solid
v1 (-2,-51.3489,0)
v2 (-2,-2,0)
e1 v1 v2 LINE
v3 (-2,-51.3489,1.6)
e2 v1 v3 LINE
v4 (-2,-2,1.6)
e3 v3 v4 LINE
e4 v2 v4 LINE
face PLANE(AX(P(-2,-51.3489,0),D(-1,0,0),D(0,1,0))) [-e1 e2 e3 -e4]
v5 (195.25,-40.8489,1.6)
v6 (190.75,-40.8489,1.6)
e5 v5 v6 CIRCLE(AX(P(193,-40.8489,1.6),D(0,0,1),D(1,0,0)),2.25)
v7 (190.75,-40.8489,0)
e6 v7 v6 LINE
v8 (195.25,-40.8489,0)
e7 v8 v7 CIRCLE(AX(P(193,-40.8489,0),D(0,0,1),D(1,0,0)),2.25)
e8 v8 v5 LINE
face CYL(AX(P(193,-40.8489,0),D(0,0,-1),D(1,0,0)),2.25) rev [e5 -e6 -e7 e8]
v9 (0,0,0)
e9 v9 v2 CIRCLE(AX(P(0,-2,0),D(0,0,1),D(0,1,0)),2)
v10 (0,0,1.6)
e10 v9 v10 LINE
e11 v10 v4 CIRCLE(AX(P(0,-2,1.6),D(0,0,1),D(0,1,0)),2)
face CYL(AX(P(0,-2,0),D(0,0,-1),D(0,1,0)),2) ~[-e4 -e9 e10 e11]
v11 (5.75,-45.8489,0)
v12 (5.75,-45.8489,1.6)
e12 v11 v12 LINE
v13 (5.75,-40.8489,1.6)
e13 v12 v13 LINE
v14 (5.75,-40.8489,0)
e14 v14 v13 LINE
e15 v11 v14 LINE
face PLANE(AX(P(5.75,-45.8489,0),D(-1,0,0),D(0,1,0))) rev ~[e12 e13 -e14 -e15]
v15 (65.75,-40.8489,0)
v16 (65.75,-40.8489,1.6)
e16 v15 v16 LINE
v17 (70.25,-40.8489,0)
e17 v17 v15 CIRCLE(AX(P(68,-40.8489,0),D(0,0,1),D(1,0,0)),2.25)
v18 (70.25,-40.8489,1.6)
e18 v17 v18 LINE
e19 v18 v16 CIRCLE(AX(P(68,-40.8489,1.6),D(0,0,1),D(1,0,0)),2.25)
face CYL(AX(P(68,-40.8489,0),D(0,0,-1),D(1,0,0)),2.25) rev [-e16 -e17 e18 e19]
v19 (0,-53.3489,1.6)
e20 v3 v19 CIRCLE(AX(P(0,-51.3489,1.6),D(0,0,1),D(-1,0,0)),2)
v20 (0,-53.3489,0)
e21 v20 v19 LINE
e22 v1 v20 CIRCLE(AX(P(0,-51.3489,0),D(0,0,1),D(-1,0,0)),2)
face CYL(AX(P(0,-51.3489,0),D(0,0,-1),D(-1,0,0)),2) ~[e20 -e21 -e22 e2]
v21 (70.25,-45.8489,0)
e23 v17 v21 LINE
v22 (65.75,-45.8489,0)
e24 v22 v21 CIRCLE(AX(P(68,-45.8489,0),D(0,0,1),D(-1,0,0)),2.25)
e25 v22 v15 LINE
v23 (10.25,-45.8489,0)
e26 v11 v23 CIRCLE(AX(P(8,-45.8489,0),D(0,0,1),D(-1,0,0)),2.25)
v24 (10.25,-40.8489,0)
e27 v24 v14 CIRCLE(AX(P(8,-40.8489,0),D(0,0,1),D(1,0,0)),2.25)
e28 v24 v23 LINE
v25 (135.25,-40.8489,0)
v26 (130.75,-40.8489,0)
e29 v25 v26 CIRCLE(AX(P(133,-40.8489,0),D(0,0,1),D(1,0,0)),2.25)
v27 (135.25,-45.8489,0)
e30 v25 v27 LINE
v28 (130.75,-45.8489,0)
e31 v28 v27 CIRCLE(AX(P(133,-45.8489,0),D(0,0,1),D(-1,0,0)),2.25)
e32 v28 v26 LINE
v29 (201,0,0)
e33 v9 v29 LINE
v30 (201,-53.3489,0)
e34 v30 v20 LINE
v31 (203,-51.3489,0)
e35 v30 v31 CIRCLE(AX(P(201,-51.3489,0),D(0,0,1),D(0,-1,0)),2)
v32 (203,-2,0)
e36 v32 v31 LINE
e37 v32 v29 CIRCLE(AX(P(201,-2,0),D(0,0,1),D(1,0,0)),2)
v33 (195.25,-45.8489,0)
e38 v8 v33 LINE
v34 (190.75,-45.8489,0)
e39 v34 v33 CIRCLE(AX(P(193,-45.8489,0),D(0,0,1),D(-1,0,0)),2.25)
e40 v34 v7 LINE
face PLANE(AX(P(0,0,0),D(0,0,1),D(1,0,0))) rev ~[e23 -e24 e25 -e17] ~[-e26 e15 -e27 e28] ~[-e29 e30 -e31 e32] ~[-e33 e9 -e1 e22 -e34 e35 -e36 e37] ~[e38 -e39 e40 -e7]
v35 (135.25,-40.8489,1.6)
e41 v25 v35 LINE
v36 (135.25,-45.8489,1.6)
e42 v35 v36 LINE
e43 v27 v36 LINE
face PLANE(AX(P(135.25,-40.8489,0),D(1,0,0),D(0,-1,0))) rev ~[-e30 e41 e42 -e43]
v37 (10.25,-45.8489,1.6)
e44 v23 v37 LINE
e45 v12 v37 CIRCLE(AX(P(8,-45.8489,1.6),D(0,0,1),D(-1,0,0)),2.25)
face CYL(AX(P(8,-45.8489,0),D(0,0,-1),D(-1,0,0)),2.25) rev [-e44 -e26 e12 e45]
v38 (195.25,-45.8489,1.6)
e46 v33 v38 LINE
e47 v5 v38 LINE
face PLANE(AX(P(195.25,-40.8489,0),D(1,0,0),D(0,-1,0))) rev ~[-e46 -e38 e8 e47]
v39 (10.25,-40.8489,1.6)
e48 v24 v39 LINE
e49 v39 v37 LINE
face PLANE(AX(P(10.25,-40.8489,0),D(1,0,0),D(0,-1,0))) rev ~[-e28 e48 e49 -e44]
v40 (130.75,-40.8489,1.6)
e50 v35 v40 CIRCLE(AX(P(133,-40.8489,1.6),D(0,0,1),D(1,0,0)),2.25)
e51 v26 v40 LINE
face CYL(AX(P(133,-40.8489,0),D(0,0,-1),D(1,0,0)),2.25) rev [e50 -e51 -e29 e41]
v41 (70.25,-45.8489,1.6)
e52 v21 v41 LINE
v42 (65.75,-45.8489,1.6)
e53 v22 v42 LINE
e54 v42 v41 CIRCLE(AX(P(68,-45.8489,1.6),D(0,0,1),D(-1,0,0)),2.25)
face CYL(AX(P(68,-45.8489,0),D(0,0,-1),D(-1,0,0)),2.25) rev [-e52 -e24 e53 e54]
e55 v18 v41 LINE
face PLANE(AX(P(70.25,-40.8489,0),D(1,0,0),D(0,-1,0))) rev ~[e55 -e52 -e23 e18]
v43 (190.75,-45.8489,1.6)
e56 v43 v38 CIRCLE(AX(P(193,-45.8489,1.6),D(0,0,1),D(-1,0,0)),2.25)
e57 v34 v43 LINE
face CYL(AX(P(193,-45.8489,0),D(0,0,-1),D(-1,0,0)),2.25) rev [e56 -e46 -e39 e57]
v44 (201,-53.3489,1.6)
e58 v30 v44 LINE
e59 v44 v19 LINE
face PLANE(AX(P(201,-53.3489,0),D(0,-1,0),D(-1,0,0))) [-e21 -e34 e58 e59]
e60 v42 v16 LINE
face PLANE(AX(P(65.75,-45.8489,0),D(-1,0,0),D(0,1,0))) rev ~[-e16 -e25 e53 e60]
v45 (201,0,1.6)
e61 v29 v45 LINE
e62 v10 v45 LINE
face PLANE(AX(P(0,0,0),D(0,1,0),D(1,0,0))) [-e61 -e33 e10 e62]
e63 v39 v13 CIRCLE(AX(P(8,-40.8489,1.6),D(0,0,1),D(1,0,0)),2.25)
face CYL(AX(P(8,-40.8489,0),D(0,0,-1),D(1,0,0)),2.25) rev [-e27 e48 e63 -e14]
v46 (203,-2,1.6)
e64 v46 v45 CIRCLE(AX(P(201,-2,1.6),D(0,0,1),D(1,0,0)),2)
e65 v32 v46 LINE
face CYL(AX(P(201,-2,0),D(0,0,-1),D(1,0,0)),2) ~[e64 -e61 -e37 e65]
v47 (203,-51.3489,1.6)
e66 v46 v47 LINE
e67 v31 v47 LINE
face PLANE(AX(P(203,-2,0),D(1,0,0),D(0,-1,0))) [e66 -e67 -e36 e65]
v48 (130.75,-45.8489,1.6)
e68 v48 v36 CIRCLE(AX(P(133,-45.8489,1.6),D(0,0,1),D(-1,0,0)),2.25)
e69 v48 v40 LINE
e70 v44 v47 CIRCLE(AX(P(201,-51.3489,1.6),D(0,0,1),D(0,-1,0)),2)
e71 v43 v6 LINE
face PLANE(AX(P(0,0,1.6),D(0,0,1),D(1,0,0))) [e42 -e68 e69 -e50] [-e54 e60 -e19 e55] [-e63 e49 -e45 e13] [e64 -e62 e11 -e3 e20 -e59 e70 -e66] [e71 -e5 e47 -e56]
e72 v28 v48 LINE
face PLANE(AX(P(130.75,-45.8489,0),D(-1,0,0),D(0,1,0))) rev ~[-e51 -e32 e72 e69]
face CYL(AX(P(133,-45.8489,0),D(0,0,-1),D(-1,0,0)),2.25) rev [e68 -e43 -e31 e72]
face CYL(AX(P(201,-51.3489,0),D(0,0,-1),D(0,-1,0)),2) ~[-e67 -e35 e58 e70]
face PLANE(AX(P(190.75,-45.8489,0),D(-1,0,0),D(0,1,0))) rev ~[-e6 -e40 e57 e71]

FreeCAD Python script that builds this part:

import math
import FreeCAD as App
import Part
import Sketcher
Q = App.Units.Quantity

doc = App.newDocument("Part")
body = doc.addObject("PartDesign::Body", "Body")

sketch1 = body.newObject("Sketcher::SketchObject", "Sketch")
sketch1.AttachmentSupport = (doc.getObject("XY_Plane"), [""])
sketch1.MapMode = "FlatFace"
sketch1.addGeometry(Part.LineSegment(App.Vector(203, -51.3489, 0), App.Vector(203, -2, 0)), False)
sketch1.addGeometry(Part.ArcOfCircle(Part.Circle(App.Vector(201, -2, 0), App.Vector(0, 0, 1), 2), math.radians(0), math.radians(90)), False)
sketch1.addGeometry(Part.LineSegment(App.Vector(201, 0, 0), App.Vector(0, 0, 0)), False)
sketch1.addGeometry(Part.ArcOfCircle(Part.Circle(App.Vector(0, -2, 0), App.Vector(0, 0, 1), 2), math.radians(90), math.radians(180)), False)
sketch1.addGeometry(Part.LineSegment(App.Vector(-2, -2, 0), App.Vector(-2, -51.3489, 0)), False)
sketch1.addGeometry(Part.ArcOfCircle(Part.Circle(App.Vector(0, -51.3489, 0), App.Vector(0, 0, 1), 2), math.radians(180), math.radians(270)), False)
sketch1.addGeometry(Part.LineSegment(App.Vector(0, -53.3489, 0), App.Vector(201, -53.3489, 0)), False)
sketch1.addGeometry(Part.ArcOfCircle(Part.Circle(App.Vector(201, -51.3489, 0), App.Vector(0, 0, 1), 2), math.radians(-90), math.radians(0)), False)
sketch1.addGeometry(Part.ArcOfCircle(Part.Circle(App.Vector(8, -45.8489, 0), App.Vector(0, 0, 1), 2.25), math.radians(180), math.radians(360)), False)
sketch1.addGeometry(Part.LineSegment(App.Vector(5.75, -45.8489, 0), App.Vector(5.75, -40.8489, 0)), False)
sketch1.addGeometry(Part.ArcOfCircle(Part.Circle(App.Vector(8, -40.8489, 0), App.Vector(0, 0, 1), 2.25), math.radians(0), math.radians(180)), False)
sketch1.addGeometry(Part.LineSegment(App.Vector(10.25, -40.8489, 0), App.Vector(10.25, -45.8489, 0)), False)
sketch1.addGeometry(Part.ArcOfCircle(Part.Circle(App.Vector(68, -40.8489, 0), App.Vector(0, 0, 1), 2.25), math.radians(0), math.radians(180)), False)
sketch1.addGeometry(Part.LineSegment(App.Vector(70.25, -40.8489, 0), App.Vector(70.25, -45.8489, 0)), False)
sketch1.addGeometry(Part.ArcOfCircle(Part.Circle(App.Vector(68, -45.8489, 0), App.Vector(0, 0, 1), 2.25), math.radians(180), math.radians(360)), False)
sketch1.addGeometry(Part.LineSegment(App.Vector(65.75, -45.8489, 0), App.Vector(65.75, -40.8489, 0)), False)
sketch1.addGeometry(Part.ArcOfCircle(Part.Circle(App.Vector(133, -40.8489, 0), App.Vector(0, 0, 1), 2.25), math.radians(0), math.radians(180)), False)
sketch1.addGeometry(Part.LineSegment(App.Vector(135.25, -40.8489, 0), App.Vector(135.25, -45.8489, 0)), False)
sketch1.addGeometry(Part.ArcOfCircle(Part.Circle(App.Vector(133, -45.8489, 0), App.Vector(0, 0, 1), 2.25), math.radians(180), math.radians(360)), False)
sketch1.addGeometry(Part.LineSegment(App.Vector(130.75, -45.8489, 0), App.Vector(130.75, -40.8489, 0)), False)
sketch1.addGeometry(Part.ArcOfCircle(Part.Circle(App.Vector(193, -40.8489, 0), App.Vector(0, 0, 1), 2.25), math.radians(0), math.radians(180)), False)
sketch1.addGeometry(Part.LineSegment(App.Vector(195.25, -40.8489, 0), App.Vector(195.25, -45.8489, 0)), False)
sketch1.addGeometry(Part.ArcOfCircle(Part.Circle(App.Vector(193, -45.8489, 0), App.Vector(0, 0, 1), 2.25), math.radians(180), math.radians(360)), False)
sketch1.addGeometry(Part.LineSegment(App.Vector(190.75, -45.8489, 0), App.Vector(190.75, -40.8489, 0)), False)
sketch1.addConstraint(Sketcher.Constraint("Tangent", 0, 2, 1, 1))
sketch1.addConstraint(Sketcher.Constraint("Tangent", 1, 2, 2, 1))
sketch1.addConstraint(Sketcher.Constraint("Tangent", 2, 2, 3, 1))
sketch1.addConstraint(Sketcher.Constraint("Tangent", 3, 2, 4, 1))
sketch1.addConstraint(Sketcher.Constraint("Tangent", 4, 2, 5, 1))
sketch1.addConstraint(Sketcher.Constraint("Tangent", 5, 2, 6, 1))
sketch1.addConstraint(Sketcher.Constraint("Tangent", 6, 2, 7, 1))
sketch1.addConstraint(Sketcher.Constraint("Tangent", 7, 2, 0, 1))
sketch1.addConstraint(Sketcher.Constraint("Tangent", 8, 1, 9, 1))
sketch1.addConstraint(Sketcher.Constraint("Tangent", 9, 2, 10, 2))
sketch1.addConstraint(Sketcher.Constraint("Tangent", 10, 1, 11, 1))
sketch1.addConstraint(Sketcher.Constraint("Tangent", 11, 2, 8, 2))
sketch1.addConstraint(Sketcher.Constraint("Tangent", 12, 1, 13, 1))
sketch1.addConstraint(Sketcher.Constraint("Tangent", 13, 2, 14, 2))
sketch1.addConstraint(Sketcher.Constraint("Tangent", 14, 1, 15, 1))
sketch1.addConstraint(Sketcher.Constraint("Tangent", 15, 2, 12, 2))
sketch1.addConstraint(Sketcher.Constraint("Tangent", 16, 1, 17, 1))
sketch1.addConstraint(Sketcher.Constraint("Tangent", 17, 2, 18, 2))
sketch1.addConstraint(Sketcher.Constraint("Tangent", 18, 1, 19, 1))
sketch1.addConstraint(Sketcher.Constraint("Tangent", 19, 2, 16, 2))
sketch1.addConstraint(Sketcher.Constraint("Tangent", 20, 1, 21, 1))
sketch1.addConstraint(Sketcher.Constraint("Tangent", 21, 2, 22, 2))
sketch1.addConstraint(Sketcher.Constraint("Tangent", 22, 1, 23, 1))
sketch1.addConstraint(Sketcher.Constraint("Tangent", 23, 2, 20, 2))
sketch1.addConstraint(Sketcher.Constraint("Vertical", 0))
sketch1.addConstraint(Sketcher.Constraint("Horizontal", 2))
sketch1.addConstraint(Sketcher.Constraint("Vertical", 4))
sketch1.addConstraint(Sketcher.Constraint("Horizontal", 6))
sketch1.addConstraint(Sketcher.Constraint("Vertical", 9))
sketch1.addConstraint(Sketcher.Constraint("Vertical", 11))
sketch1.addConstraint(Sketcher.Constraint("Vertical", 13))
sketch1.addConstraint(Sketcher.Constraint("Vertical", 15))
sketch1.addConstraint(Sketcher.Constraint("Vertical", 17))
sketch1.addConstraint(Sketcher.Constraint("Vertical", 19))
sketch1.addConstraint(Sketcher.Constraint("Vertical", 21))
sketch1.addConstraint(Sketcher.Constraint("Vertical", 23))
sketch1.addConstraint(Sketcher.Constraint("Coincident", 2, 2, -1, 1))
sketch1.addConstraint(Sketcher.Constraint("Equal", 1, 3))
sketch1.addConstraint(Sketcher.Constraint("Equal", 3, 5))
sketch1.addConstraint(Sketcher.Constraint("Equal", 5, 7))
sketch1.addConstraint(Sketcher.Constraint("Equal", 10, 12))
sketch1.addConstraint(Sketcher.Constraint("Equal", 14, 16))
sketch1.addConstraint(Sketcher.Constraint("Equal", 18, 20))
sketch1.addConstraint(Sketcher.Constraint("Horizontal", 10, 3, 12, 3))
sketch1.addConstraint(Sketcher.Constraint("Horizontal", 8, 3, 14, 3))
sketch1.addConstraint(Sketcher.Constraint("Horizontal", 12, 3, 16, 3))
sketch1.addConstraint(Sketcher.Constraint("Horizontal", 14, 3, 18, 3))
sketch1.addConstraint(Sketcher.Constraint("Horizontal", 16, 3, 20, 3))
sketch1.addConstraint(Sketcher.Constraint("Horizontal", 18, 3, 22, 3))
sketch1.addConstraint(Sketcher.Constraint("Radius", 1, Q("2 mm")))
sketch1.addConstraint(Sketcher.Constraint("DistanceX", 2, 2, 2, 1, Q("201 mm")))
sketch1.addConstraint(Sketcher.Constraint("DistanceY", 9, 1, 9, 2, Q("5 mm")))
sketch1.addConstraint(Sketcher.Constraint("Radius", 8, Q("2.25 mm")))
sketch1.addConstraint(Sketcher.Constraint("DistanceX", -1, 1, 8, 3, Q("8 mm")))
sketch1.addConstraint(Sketcher.Constraint("DistanceX", -1, 1, 12, 3, Q("68 mm")))
sketch1.addConstraint(Sketcher.Constraint("DistanceX", -1, 1, 16, 3, Q("133 mm")))
sketch1.addConstraint(Sketcher.Constraint("DistanceX", -1, 1, 20, 3, Q("193 mm")))
sketch1.addConstraint(Sketcher.Constraint("DistanceY", 5, 3, 8, 3, Q("5.5 mm")))
sketch1.addConstraint(Sketcher.Constraint("DistanceY", 0, 1, 0, 2, Q("49.349 mm")))
pad1 = body.newObject("PartDesign::Pad", "Pad")
pad1.Profile = sketch1
pad1.Length = 1.6

doc.recompute()
